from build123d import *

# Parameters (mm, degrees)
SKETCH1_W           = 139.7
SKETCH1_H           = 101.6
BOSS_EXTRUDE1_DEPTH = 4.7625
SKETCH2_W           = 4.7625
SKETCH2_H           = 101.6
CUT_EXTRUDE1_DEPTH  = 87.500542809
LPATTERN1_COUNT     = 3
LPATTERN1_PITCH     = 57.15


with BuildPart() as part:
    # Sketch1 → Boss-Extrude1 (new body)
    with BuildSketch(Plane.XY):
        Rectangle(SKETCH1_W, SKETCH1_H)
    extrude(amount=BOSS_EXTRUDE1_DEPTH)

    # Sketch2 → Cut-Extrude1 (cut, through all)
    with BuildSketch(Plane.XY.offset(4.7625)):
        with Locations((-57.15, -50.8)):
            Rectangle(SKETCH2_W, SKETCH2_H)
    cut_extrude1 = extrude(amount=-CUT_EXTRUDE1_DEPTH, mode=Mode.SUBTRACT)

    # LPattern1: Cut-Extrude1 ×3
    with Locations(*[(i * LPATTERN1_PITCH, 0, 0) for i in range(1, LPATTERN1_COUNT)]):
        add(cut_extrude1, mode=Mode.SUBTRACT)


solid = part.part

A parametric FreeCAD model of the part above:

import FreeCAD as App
import Part
import Sketcher

V = App.Vector
Q = App.Units.Quantity


def add_polygon(sketch, points):
    """Adds a closed chain of lines whose ends are joined by coincident constraints."""
    first, n = sketch.GeometryCount, len(points)
    for a, b in zip(points, points[1:] + points[:1]):
        sketch.addGeometry(Part.LineSegment(App.Vector(*a, 0), App.Vector(*b, 0)), False)
    for i in range(n):
        sketch.addConstraint(Sketcher.Constraint("Coincident", first + i, 2, first + (i + 1) % n, 1))

doc = App.newDocument("Part")
body = doc.addObject("PartDesign::Body", "Body")

sketch1 = body.newObject("Sketcher::SketchObject", "Sketch")
sketch1.AttachmentSupport = (doc.getObject("XY_Plane"), [""])
sketch1.MapMode = "FlatFace"
add_polygon(sketch1, [(-70, 51), (-70, -51), (70, -51), (70, 51)])
sketch1.addConstraint([
    Sketcher.Constraint("Vertical", 0),
    Sketcher.Constraint("Horizontal", 1),
    Sketcher.Constraint("Vertical", 2),
    Sketcher.Constraint("Horizontal", 3),
    Sketcher.Constraint("Symmetric", 0, 2, 2, 2, -1, 1),
    Sketcher.Constraint("DistanceY", 0, 2, 0, 1, Q("4 in")),
    Sketcher.Constraint("DistanceX", 1, 1, 1, 2, Q("5.5 in")),
])
pad1 = body.newObject("PartDesign::Pad", "Pad")
pad1.Profile = sketch1
pad1.Length = Q("0.1875 in")

sketch2 = body.newObject("Sketcher::SketchObject", "Sketch001")
sketch2.AttachmentSupport = (doc.getObject("XY_Plane"), [""])
sketch2.MapMode = "FlatFace"
sketch2.AttachmentOffset = App.Placement(V(0, 0, 0.1875 * 25.4), App.Rotation())
add_polygon(sketch2, [(-59.5, 0), (-59.5, -101.6), (-54.8, -101.6), (-54.8, 0)])
sketch2.addConstraint([
    Sketcher.Constraint("Vertical", 0),
    Sketcher.Constraint("Horizontal", 1),
    Sketcher.Constraint("Vertical", 2),
    Sketcher.Constraint("Horizontal", 3),
    Sketcher.Constraint("PointOnObject", 2, 2, -1),
    Sketcher.Constraint("DistanceY", 0, 2, 0, 1, Q("4 in")),
    Sketcher.Constraint("DistanceX", 1, 1, 1, 2, Q("0.1875 in")),
    Sketcher.Constraint("DistanceX", 0, 2, -1, 1, Q("2.34375 in")),
])
pocket1 = body.newObject("PartDesign::Pocket", "Pocket")
pocket1.Profile = sketch2
pocket1.Type = "ThroughAll"
doc.recompute()

linearpattern = body.newObject("PartDesign::LinearPattern", "LinearPattern")
linearpattern.Originals = [pocket1]
linearpattern.Direction = (doc.getObject("X_Axis"), [""])
linearpattern.Mode = "offset"
linearpattern.Offset = Q("2.25 in")
linearpattern.Occurrences = 3
body.Tip = linearpattern

doc.recompute()
